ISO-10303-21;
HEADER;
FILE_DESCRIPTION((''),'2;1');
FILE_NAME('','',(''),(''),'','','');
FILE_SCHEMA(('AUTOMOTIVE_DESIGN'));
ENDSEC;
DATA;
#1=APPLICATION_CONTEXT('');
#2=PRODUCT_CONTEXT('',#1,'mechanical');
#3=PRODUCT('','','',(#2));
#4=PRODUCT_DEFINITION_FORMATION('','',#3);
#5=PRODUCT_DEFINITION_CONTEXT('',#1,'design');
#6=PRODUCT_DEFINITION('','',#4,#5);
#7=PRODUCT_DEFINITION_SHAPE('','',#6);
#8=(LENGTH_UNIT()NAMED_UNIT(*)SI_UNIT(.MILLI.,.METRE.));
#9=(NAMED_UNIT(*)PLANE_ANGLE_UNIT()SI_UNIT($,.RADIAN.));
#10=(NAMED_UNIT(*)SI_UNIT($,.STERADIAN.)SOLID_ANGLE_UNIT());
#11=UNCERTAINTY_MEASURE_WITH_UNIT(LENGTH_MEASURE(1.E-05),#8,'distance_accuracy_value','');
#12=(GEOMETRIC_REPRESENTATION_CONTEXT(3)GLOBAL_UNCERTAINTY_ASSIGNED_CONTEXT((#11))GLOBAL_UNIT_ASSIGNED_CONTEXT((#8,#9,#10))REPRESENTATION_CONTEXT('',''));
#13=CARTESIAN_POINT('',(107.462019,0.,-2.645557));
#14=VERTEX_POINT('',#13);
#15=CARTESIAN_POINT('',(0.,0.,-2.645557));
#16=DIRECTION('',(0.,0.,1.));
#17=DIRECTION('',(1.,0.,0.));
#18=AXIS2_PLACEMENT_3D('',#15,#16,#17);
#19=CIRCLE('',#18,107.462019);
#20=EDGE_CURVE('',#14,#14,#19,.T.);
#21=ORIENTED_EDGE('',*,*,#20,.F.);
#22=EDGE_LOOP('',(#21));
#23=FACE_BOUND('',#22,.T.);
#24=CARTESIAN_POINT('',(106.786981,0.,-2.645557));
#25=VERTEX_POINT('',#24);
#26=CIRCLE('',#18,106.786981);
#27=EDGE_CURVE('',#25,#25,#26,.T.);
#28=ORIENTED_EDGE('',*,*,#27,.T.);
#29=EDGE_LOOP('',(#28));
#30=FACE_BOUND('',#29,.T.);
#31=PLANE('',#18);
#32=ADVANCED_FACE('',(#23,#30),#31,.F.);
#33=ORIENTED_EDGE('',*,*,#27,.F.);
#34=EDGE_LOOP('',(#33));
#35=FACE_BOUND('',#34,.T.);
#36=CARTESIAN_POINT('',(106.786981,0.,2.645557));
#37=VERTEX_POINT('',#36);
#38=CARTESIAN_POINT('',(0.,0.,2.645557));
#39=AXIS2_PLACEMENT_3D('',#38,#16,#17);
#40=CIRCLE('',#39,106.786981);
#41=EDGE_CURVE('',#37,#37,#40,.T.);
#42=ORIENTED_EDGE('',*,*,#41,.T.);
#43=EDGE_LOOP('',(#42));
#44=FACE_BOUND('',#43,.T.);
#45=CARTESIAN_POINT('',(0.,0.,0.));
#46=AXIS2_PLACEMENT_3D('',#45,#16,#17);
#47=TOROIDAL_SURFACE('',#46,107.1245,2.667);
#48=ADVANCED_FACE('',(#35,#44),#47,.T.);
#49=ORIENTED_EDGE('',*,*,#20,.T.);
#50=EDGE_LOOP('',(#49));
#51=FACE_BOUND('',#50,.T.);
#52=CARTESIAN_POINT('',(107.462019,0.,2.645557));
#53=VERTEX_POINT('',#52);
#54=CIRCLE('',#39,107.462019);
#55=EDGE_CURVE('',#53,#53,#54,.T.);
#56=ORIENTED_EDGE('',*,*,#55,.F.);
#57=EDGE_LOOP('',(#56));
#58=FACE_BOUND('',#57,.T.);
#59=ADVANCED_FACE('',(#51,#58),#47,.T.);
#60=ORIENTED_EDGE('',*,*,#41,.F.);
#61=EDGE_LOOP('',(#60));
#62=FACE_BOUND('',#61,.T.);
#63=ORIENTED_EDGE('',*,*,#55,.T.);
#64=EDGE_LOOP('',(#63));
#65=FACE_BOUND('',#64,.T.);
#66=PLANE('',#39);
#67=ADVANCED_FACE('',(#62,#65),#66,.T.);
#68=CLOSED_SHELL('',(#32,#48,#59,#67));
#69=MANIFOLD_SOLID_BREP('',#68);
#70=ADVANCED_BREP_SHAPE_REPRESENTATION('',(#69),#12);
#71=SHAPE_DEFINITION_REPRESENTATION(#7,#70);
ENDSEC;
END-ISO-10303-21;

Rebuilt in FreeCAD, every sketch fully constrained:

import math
import FreeCAD as App
import Part
import Sketcher
from FreeCAD import Vector
Q = App.Units.Quantity

doc = App.newDocument("Part")
body = doc.addObject("PartDesign::Body", "Body")

sketch1 = body.newObject("Sketcher::SketchObject", "Sketch")
sketch1.AttachmentSupport = (doc.getObject("YZ_Plane"), [""])
sketch1.MapMode = "FlatFace"
sketch1.addGeometry([
    Part.ArcOfCircle(Part.Circle(Vector(-107.1245, 0, 0), Vector(0, 0, 1), 2.667), math.radians(-82.729503), math.radians(82.729503)),
    Part.LineSegment(Vector(-106.786981, 2.645557, 0), Vector(-107.462019, 2.645557, 0)),
    Part.ArcOfCircle(Part.Circle(Vector(-107.1245, 0, 0), Vector(0, 0, 1), 2.667), math.radians(97.270497), math.radians(180)),
    Part.ArcOfCircle(Part.Circle(Vector(-107.1245, 0, 0), Vector(0, 0, 1), 2.667), math.radians(180), math.radians(262.729503)),
    Part.LineSegment(Vector(-107.462019, -2.645557, 0), Vector(-106.786981, -2.645557, 0)),
], False)
sketch1.addConstraint([
    Sketcher.Constraint("Coincident", 0, 2, 1, 1),
    Sketcher.Constraint("Coincident", 1, 2, 2, 1),
    Sketcher.Constraint("Tangent", 2, 2, 3, 1),
    Sketcher.Constraint("Coincident", 3, 2, 4, 1),
    Sketcher.Constraint("Coincident", 4, 2, 0, 1),
    Sketcher.Constraint("Horizontal", 1),
    Sketcher.Constraint("Horizontal", 4),
    Sketcher.Constraint("Coincident", 2, 3, 0, 3),
    Sketcher.Constraint("Equal", 0, 2),
    Sketcher.Constraint("Equal", 2, 3),
    Sketcher.Constraint("Symmetric", 1, 2, 3, 2, -1),
    Sketcher.Constraint("PointOnObject", 2, 2, -1),
    Sketcher.Constraint("Radius", 0, Q("0.105 in")),
    Sketcher.Constraint("DistanceX", 0, 3, -1, 1, Q("4.2175 in")),
    Sketcher.Constraint("DistanceX", 1, 2, 1, 1, 0.675038),
])
revolution = body.newObject("PartDesign::Revolution", "Revolution")
revolution.Profile = sketch1
revolution.ReferenceAxis = (sketch1, ["V_Axis"])
revolution.Angle = 360

doc.recompute()
